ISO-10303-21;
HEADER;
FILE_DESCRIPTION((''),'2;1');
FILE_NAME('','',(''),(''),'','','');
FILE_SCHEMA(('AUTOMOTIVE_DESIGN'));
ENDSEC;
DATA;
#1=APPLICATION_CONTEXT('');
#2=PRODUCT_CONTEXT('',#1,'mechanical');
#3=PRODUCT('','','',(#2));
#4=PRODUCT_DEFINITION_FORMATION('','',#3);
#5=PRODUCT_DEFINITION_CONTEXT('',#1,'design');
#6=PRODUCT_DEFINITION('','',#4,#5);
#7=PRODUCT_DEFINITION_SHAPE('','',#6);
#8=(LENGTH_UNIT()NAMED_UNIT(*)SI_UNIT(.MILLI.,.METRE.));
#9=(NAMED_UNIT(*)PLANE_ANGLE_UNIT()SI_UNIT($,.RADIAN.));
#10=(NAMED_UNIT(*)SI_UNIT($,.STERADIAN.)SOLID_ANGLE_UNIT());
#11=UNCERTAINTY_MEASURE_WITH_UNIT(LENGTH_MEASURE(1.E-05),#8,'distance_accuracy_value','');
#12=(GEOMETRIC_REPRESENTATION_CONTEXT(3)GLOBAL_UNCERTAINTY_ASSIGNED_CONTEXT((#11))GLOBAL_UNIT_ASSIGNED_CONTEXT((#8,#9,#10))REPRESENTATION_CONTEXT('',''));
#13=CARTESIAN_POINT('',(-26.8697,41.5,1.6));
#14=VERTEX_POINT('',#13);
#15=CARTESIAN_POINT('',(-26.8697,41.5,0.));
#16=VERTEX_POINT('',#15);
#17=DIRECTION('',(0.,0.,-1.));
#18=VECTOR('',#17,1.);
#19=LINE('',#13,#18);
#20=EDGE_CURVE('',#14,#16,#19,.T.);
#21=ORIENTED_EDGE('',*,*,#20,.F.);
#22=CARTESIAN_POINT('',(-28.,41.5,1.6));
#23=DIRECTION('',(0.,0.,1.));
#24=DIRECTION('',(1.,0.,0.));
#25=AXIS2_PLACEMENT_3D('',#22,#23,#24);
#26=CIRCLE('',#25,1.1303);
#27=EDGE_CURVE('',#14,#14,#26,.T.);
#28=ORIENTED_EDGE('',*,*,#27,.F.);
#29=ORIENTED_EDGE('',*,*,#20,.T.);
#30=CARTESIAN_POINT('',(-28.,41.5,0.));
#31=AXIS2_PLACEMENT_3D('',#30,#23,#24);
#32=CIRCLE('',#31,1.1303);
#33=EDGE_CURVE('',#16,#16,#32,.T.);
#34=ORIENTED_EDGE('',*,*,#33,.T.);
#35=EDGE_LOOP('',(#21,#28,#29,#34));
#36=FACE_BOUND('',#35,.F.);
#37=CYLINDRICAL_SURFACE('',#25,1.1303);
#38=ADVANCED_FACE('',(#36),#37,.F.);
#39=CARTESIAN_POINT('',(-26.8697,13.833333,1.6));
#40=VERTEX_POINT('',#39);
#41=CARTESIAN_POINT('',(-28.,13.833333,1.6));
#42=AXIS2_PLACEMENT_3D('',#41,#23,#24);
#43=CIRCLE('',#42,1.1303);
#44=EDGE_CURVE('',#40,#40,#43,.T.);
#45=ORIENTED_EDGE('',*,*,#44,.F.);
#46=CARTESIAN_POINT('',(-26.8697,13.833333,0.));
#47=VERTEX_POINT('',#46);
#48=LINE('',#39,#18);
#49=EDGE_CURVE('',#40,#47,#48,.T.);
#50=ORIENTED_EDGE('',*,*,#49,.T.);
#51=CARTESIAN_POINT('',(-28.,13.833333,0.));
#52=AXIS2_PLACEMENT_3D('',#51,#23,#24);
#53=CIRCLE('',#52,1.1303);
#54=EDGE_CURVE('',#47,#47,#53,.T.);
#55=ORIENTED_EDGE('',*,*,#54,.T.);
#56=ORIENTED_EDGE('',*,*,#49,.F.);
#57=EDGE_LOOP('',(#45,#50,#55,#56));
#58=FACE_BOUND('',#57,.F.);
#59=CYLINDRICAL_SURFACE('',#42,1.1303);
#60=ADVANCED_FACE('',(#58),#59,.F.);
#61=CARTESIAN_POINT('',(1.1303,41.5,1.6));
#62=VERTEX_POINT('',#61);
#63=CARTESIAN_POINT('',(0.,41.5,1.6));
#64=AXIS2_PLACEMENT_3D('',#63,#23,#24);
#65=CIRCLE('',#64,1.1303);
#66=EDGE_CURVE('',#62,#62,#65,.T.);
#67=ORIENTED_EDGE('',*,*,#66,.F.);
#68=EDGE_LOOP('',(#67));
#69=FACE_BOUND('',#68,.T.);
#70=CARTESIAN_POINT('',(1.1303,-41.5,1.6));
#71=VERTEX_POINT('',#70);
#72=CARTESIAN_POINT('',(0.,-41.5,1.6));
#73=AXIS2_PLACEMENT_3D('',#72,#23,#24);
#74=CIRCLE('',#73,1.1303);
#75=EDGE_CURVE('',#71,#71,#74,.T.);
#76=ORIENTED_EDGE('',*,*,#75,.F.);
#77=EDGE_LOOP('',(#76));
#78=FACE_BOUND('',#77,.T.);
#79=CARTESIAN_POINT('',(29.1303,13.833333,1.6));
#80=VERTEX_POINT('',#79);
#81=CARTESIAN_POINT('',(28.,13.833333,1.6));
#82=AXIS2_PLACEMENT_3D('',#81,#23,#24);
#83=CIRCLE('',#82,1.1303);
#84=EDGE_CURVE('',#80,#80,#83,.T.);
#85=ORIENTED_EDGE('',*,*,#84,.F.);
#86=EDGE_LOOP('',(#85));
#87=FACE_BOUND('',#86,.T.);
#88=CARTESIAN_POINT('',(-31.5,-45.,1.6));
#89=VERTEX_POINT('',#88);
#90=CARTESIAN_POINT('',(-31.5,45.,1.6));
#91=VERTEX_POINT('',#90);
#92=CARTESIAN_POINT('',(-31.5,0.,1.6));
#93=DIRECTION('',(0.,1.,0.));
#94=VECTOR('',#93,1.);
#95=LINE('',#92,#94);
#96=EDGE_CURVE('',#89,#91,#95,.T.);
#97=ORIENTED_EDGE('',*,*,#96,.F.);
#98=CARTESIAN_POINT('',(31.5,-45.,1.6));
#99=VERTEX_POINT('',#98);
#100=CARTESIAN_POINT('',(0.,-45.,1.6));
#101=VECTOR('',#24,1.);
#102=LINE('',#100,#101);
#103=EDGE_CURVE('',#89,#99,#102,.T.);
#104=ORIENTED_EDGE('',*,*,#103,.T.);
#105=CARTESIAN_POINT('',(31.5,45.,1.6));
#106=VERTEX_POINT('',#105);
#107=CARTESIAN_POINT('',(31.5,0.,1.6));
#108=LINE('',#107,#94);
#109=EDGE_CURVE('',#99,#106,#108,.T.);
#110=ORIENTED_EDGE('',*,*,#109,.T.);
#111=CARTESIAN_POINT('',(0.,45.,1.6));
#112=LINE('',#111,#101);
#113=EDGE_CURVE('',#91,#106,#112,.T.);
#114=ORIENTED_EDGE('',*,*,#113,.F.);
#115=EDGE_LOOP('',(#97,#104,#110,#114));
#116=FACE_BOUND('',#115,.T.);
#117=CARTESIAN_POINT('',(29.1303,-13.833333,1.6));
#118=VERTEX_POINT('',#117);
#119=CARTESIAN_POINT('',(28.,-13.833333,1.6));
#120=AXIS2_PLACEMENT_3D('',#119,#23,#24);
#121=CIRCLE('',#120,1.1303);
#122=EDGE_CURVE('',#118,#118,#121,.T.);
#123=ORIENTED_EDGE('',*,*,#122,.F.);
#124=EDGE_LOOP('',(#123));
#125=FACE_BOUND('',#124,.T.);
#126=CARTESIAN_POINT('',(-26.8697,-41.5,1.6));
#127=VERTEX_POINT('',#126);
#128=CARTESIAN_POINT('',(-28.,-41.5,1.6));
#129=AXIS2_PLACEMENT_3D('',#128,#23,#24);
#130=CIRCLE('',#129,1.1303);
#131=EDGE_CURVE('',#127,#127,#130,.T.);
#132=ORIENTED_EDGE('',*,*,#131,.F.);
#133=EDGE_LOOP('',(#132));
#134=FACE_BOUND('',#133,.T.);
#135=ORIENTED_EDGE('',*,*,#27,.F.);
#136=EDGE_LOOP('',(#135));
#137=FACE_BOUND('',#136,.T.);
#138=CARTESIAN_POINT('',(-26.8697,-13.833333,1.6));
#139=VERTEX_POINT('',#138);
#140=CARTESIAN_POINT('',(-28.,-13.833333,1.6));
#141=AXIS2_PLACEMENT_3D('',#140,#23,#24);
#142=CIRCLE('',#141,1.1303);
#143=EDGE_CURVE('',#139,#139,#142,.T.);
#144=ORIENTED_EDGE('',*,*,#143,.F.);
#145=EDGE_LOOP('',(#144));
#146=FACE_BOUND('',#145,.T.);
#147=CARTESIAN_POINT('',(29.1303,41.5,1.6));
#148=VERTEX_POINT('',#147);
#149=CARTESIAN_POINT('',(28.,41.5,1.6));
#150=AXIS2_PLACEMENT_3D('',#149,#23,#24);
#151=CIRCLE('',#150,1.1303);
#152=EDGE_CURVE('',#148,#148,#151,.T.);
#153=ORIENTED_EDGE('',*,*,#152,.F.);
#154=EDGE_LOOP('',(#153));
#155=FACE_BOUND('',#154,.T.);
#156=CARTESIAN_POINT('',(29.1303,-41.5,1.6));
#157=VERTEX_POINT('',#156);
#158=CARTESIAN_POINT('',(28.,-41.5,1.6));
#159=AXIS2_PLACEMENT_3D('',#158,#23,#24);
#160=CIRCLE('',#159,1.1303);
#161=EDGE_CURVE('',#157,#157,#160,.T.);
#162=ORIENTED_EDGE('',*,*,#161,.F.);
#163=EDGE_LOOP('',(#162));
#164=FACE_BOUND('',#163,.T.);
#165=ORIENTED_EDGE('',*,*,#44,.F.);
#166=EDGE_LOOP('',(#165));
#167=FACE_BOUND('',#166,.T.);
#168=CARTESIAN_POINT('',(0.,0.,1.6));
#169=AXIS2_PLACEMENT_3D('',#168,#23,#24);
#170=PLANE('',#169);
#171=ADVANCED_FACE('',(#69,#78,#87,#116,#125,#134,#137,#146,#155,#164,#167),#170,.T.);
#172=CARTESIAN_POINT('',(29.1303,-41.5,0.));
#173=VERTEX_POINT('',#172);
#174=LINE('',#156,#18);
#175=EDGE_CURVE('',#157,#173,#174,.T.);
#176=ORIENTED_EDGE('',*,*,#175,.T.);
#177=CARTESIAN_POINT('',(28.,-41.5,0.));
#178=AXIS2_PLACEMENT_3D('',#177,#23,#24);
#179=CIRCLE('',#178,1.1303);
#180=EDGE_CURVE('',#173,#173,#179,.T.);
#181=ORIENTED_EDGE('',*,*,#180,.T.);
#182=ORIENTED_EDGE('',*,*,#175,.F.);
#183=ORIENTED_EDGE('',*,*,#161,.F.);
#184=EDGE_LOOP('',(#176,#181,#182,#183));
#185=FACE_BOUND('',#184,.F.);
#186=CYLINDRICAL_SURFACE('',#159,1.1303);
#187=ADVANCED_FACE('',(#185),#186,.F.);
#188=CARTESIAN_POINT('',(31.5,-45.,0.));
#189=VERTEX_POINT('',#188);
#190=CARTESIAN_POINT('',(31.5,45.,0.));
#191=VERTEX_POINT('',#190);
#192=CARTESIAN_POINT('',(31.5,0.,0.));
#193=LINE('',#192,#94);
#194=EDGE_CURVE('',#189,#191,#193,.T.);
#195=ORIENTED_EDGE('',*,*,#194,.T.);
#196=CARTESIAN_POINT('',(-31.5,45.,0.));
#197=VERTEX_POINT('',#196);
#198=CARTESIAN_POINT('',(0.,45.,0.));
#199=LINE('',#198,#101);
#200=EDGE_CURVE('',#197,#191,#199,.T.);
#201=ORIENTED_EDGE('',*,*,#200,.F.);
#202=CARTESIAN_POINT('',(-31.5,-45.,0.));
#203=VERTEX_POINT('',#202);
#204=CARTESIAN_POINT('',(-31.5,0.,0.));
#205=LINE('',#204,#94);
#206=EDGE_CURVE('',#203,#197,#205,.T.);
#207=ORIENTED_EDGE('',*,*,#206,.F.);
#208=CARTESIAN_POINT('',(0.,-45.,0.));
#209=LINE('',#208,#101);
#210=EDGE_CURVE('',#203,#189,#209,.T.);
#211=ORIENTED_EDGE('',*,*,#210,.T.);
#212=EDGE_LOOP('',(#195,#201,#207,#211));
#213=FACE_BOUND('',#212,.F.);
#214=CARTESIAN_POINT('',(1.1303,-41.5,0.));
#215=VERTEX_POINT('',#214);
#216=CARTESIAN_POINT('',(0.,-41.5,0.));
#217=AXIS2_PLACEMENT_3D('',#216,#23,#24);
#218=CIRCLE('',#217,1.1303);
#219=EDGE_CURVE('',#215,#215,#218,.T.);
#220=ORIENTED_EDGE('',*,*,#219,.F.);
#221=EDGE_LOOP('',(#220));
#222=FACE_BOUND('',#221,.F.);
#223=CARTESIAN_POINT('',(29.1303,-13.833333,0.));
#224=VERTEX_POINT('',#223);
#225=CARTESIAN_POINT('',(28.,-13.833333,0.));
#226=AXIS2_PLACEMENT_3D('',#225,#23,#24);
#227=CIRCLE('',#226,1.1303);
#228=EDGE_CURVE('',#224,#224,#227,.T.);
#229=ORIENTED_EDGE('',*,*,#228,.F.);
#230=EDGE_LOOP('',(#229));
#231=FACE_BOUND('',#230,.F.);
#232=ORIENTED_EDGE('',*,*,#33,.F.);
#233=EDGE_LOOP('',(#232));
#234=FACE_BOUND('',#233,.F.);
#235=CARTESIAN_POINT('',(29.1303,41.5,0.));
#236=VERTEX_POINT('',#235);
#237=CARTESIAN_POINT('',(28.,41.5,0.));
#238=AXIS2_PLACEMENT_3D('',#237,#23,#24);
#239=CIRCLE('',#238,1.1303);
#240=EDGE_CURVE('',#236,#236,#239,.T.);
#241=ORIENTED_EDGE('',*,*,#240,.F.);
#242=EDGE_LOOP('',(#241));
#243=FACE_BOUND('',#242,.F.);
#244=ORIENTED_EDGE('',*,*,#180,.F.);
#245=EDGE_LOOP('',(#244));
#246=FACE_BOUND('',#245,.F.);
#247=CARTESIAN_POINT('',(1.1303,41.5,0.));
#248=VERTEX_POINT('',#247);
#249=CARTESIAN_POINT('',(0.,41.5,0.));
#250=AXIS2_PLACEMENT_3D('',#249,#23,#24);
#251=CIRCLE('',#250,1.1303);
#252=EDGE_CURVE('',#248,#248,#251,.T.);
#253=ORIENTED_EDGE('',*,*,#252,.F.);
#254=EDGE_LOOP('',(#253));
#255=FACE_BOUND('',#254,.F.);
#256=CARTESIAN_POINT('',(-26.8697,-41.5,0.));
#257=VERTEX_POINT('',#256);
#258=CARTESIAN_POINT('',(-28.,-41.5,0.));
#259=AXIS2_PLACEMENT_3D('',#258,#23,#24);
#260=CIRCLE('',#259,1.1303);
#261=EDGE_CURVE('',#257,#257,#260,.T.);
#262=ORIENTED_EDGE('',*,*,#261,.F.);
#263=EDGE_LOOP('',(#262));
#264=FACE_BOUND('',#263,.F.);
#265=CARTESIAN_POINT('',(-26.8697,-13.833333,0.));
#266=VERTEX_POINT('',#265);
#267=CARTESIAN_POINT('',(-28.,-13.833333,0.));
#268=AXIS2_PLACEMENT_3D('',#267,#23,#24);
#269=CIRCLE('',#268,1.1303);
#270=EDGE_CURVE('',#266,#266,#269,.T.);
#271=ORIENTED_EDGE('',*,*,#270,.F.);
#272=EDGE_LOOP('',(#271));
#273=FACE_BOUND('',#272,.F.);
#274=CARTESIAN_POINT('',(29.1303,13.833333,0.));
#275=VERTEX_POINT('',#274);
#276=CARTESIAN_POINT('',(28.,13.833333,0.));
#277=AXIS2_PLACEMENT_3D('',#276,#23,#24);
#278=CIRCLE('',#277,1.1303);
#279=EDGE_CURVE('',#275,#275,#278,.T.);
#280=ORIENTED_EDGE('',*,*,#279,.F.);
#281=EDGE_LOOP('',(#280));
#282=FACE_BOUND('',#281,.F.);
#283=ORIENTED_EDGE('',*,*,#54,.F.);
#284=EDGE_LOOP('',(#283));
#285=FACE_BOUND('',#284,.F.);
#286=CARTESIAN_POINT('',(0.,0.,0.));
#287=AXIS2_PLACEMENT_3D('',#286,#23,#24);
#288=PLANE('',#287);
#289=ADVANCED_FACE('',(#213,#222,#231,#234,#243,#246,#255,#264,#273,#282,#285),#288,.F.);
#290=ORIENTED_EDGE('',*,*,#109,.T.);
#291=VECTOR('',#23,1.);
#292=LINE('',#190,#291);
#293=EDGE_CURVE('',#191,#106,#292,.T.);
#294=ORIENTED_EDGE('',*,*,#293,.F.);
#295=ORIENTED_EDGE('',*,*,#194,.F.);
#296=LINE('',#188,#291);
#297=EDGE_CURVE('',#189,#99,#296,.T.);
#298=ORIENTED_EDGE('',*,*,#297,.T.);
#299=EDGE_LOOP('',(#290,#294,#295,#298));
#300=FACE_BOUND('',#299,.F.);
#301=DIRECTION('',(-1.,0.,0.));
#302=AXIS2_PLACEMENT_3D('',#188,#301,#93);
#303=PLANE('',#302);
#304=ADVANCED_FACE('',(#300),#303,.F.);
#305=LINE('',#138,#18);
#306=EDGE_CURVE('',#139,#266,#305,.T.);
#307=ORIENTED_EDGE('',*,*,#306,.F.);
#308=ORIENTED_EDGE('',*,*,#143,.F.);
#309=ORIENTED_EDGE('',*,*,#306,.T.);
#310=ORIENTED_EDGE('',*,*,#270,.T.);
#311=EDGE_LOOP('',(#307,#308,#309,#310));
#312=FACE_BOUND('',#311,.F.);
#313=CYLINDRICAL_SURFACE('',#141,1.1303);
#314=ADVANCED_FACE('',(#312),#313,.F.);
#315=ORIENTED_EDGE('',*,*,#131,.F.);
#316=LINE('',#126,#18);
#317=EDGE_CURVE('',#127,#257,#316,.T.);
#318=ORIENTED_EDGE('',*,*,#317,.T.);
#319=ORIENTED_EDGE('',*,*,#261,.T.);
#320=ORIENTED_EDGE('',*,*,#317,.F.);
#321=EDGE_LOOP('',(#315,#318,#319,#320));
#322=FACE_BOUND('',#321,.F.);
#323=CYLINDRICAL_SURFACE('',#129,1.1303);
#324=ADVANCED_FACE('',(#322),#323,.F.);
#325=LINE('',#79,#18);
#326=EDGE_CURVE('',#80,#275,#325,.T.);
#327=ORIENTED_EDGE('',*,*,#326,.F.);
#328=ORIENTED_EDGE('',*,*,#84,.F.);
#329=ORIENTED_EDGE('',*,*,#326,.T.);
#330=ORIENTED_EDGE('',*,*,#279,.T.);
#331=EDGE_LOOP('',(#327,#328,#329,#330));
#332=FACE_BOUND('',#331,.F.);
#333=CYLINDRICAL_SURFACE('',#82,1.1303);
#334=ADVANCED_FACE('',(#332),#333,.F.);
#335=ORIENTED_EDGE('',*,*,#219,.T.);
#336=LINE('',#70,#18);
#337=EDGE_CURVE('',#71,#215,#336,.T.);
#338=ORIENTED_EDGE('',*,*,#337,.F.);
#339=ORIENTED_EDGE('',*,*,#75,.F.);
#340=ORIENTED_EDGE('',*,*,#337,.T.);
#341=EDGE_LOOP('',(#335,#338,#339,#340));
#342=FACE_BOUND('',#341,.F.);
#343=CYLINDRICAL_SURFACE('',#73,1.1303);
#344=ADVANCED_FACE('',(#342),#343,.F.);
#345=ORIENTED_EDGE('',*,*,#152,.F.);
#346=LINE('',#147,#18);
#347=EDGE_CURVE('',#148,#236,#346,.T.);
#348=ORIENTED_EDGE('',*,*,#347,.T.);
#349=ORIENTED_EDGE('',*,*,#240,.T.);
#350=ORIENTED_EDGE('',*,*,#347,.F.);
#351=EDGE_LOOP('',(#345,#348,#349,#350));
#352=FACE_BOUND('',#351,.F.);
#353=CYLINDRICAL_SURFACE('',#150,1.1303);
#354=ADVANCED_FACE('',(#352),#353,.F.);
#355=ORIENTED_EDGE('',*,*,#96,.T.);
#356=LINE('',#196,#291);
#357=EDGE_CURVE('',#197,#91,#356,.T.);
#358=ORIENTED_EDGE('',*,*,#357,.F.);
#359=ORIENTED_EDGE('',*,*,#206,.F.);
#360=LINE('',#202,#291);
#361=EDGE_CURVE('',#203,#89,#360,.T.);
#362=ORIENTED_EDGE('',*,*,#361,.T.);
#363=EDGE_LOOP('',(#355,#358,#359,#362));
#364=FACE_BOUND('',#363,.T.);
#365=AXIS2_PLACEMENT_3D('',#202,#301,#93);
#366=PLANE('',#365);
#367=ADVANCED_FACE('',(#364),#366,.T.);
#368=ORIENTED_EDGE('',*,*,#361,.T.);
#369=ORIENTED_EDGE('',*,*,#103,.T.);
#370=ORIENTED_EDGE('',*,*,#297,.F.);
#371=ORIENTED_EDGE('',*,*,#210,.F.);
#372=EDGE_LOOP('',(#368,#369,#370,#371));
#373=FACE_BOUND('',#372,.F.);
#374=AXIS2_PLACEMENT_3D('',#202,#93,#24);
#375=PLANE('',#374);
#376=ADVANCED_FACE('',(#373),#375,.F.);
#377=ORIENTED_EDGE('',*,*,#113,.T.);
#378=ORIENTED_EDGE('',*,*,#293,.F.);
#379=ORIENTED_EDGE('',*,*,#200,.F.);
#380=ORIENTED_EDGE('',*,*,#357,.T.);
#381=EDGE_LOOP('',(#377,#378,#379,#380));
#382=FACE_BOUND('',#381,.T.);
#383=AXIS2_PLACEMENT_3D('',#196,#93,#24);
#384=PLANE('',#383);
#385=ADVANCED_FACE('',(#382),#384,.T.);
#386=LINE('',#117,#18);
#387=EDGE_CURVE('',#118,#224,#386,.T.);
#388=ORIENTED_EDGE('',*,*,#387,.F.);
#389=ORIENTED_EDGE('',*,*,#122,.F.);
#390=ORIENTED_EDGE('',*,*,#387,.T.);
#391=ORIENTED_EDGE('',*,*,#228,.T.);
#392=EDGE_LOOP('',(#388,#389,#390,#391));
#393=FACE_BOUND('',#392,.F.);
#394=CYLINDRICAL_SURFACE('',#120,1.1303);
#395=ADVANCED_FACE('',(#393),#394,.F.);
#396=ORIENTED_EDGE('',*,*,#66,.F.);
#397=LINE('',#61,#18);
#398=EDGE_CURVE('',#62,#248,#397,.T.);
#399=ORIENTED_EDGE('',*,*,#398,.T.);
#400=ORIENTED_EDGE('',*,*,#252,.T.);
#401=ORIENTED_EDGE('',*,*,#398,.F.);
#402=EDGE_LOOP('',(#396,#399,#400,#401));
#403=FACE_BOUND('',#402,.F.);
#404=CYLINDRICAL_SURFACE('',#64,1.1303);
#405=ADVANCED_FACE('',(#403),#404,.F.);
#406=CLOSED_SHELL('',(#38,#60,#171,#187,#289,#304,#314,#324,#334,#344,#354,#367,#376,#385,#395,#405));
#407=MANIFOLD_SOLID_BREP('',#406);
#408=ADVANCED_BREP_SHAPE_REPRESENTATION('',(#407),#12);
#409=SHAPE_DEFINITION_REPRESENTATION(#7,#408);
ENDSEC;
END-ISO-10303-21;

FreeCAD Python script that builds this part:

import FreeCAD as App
import Part
import Sketcher


def add_polygon(sketch, points):
    """Adds a closed chain of lines whose ends are joined by coincident constraints."""
    first, n = sketch.GeometryCount, len(points)
    for a, b in zip(points, points[1:] + points[:1]):
        sketch.addGeometry(Part.LineSegment(App.Vector(*a, 0), App.Vector(*b, 0)), False)
    for i in range(n):
        sketch.addConstraint(Sketcher.Constraint("Coincident", first + i, 2, first + (i + 1) % n, 1))

doc = App.newDocument("Part")
body = doc.addObject("PartDesign::Body", "Body")

sketch1 = doc.addObject("Sketcher::SketchObject", "Sketch")
body.addObject(sketch1)
sketch1.AttachmentSupport = (doc.XY_Plane, [""])
sketch1.MapMode = "FlatFace"
add_polygon(sketch1, [(-32, 45), (-32, -45), (32, -45), (32, 45)])
sketch1.addConstraint([
    Sketcher.Constraint("Vertical", 0),
    Sketcher.Constraint("Horizontal", 1),
    Sketcher.Constraint("Vertical", 2),
    Sketcher.Constraint("Horizontal", 3),
    Sketcher.Constraint("Symmetric", 0, 2, 2, 2, -1, 1),
    Sketcher.Constraint("DistanceX", 1, 1, 1, 2, 63.0),
    Sketcher.Constraint("DistanceY", 0, 2, 0, 1, 90.0),
])
pad1 = doc.addObject("PartDesign::Pad", "Pad")
body.addObject(pad1)
pad1.Profile = sketch1
pad1.Length = 1.6

sketch2 = doc.addObject("Sketcher::SketchObject", "Sketch001")
body.addObject(sketch2)
sketch2.AttachmentSupport = (doc.XY_Plane, [""])
sketch2.MapMode = "FlatFace"
sketch2.AttachmentOffset = App.Placement(App.Vector(0, 0, 1.6), App.Rotation())
sketch2.addGeometry([
    Part.Circle(App.Vector(-28, 41.5, 0), App.Vector(0, 0, 1), 1.1),
    Part.Circle(App.Vector(0, 41.5, 0), App.Vector(0, 0, 1), 1.1),
    Part.Circle(App.Vector(28, 41.5, 0), App.Vector(0, 0, 1), 1.1),
    Part.Circle(App.Vector(28, 13.8, 0), App.Vector(0, 0, 1), 1.1),
    Part.Circle(App.Vector(28, -13.8, 0), App.Vector(0, 0, 1), 1.1),
    Part.Circle(App.Vector(0, -41.5, 0), App.Vector(0, 0, 1), 1.1),
    Part.Circle(App.Vector(-28, -41.5, 0), App.Vector(0, 0, 1), 1.1),
    Part.Circle(App.Vector(-28, -13.8, 0), App.Vector(0, 0, 1), 1.1),
    Part.Circle(App.Vector(-28, 13.8, 0), App.Vector(0, 0, 1), 1.1),
    Part.Circle(App.Vector(28, -41.5, 0), App.Vector(0, 0, 1), 1.1),
], False)
sketch2.addConstraint([
    Sketcher.Constraint("Equal", 0, 1),
    Sketcher.Constraint("Equal", 1, 2),
    Sketcher.Constraint("Equal", 2, 3),
    Sketcher.Constraint("Equal", 3, 4),
    Sketcher.Constraint("Equal", 4, 5),
    Sketcher.Constraint("Equal", 5, 6),
    Sketcher.Constraint("Equal", 6, 7),
    Sketcher.Constraint("Equal", 7, 8),
    Sketcher.Constraint("Equal", 8, 9),
    Sketcher.Constraint("Symmetric", 1, 3, 5, 3, -1, 1),
    Sketcher.Constraint("Symmetric", 2, 3, 6, 3, -1, 1),
    Sketcher.Constraint("Symmetric", 3, 3, 7, 3, -1, 1),
    Sketcher.Constraint("Symmetric", 4, 3, 8, 3, -1, 1),
    Sketcher.Constraint("Symmetric", 0, 3, 9, 3, -1, 1),
    Sketcher.Constraint("Symmetric", 0, 3, 2, 3, -2),
    Sketcher.Constraint("Symmetric", 4, 3, 7, 3, -2),
    Sketcher.Constraint("PointOnObject", 1, 3, -2),
    Sketcher.Constraint("Horizontal", 0, 3, 1, 3),
    Sketcher.Constraint("Vertical", 2, 3, 3, 3),
    Sketcher.Constraint("DistanceX", 0, 3, -1, 1, 28.0),
    Sketcher.Constraint("DistanceY", 5, 3, 1, 3, 83.0),
    Sketcher.Constraint("Diameter", 0, 2.2606),
    Sketcher.Constraint("DistanceY", -1, 1, 3, 3, 13.833333),
])
pocket1 = doc.addObject("PartDesign::Pocket", "Pocket")
body.addObject(pocket1)
pocket1.Profile = sketch2
pocket1.Length = 25

doc.recompute()
